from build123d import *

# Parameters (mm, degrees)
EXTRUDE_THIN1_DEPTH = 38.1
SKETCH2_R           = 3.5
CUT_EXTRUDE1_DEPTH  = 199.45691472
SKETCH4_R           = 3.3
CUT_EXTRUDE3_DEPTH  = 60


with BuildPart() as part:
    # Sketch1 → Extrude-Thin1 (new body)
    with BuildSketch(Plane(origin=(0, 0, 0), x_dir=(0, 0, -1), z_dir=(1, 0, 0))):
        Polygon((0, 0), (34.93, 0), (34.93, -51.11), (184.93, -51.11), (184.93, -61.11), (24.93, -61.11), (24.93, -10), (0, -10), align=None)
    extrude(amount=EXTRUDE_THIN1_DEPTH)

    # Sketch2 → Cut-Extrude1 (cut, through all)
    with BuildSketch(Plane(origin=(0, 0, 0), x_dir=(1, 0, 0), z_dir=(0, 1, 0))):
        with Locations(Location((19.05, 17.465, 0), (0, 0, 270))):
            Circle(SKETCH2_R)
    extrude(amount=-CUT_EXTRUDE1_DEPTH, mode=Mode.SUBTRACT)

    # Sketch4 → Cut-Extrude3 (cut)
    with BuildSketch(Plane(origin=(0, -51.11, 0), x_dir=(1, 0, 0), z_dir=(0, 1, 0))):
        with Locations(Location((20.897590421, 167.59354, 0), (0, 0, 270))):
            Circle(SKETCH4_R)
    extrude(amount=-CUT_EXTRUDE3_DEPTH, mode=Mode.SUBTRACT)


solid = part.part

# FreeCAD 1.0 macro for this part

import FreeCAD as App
import Part
import Sketcher


def add_polygon(sketch, points):
    """Adds a closed chain of lines whose ends are joined by coincident constraints."""
    first, n = sketch.GeometryCount, len(points)
    for a, b in zip(points, points[1:] + points[:1]):
        sketch.addGeometry(Part.LineSegment(App.Vector(*a, 0), App.Vector(*b, 0)), False)
    for i in range(n):
        sketch.addConstraint(Sketcher.Constraint("Coincident", first + i, 2, first + (i + 1) % n, 1))

doc = App.newDocument("Part")
body = doc.addObject("PartDesign::Body", "Body")

# Sketch on YZ plane
sketch1 = body.newObject("Sketcher::SketchObject", "Sketch")
sketch1.AttachmentSupport = (doc.getObject("YZ_Plane"), [""])
sketch1.MapMode = "FlatFace"
add_polygon(sketch1, [(0, -35), (0, 0), (-10, 0), (-10, -25), (-61, -25), (-61, -185), (-51, -185), (-51, -35)])  # lines 0-7
sketch1.addConstraint([
    Sketcher.Constraint("Vertical", 0),
    Sketcher.Constraint("Horizontal", 1),
    Sketcher.Constraint("Vertical", 2),
    Sketcher.Constraint("Horizontal", 3),
    Sketcher.Constraint("Vertical", 4),
    Sketcher.Constraint("Horizontal", 5),
    Sketcher.Constraint("Vertical", 6),
    Sketcher.Constraint("Horizontal", 7),
    Sketcher.Constraint("Coincident", 0, 2, -1, 1),
    Sketcher.Constraint("Equal", 1, 5),
    Sketcher.Constraint("DistanceX", 1, 2, 1, 1, 10.0),
    Sketcher.Constraint("DistanceY", 4, 2, 4, 1, 160.0),
    Sketcher.Constraint("DistanceY", 6, 1, 6, 2, 150.0),
    Sketcher.Constraint("DistanceX", 3, 2, 3, 1, 51.11),
    Sketcher.Constraint("DistanceY", 0, 1, 0, 2, 34.93),
])
pad1 = body.newObject("PartDesign::Pad", "Pad")
pad1.Profile = sketch1
pad1.Length = 38.1

# Sketch on XZ plane
sketch2 = body.newObject("Sketcher::SketchObject", "Sketch001")
sketch2.AttachmentSupport = (doc.getObject("XZ_Plane"), [""])
sketch2.MapMode = "FlatFace"
sketch2.addGeometry(Part.Circle(App.Vector(19.1, -17.5, 0), App.Vector(0, 0, 1), 3.5), False)
sketch2.addConstraint([
    Sketcher.Constraint("Diameter", 0, 7.0),
    Sketcher.Constraint("DistanceX", -1, 1, 0, 3, 19.05),
    Sketcher.Constraint("DistanceY", 0, 3, -1, 1, 17.465),
])
pocket1 = body.newObject("PartDesign::Pocket", "Pocket")
pocket1.Profile = sketch2
pocket1.Type = "ThroughAll"
pocket1.Reversed = True

# Sketch on XZ plane
sketch3 = body.newObject("Sketcher::SketchObject", "Sketch002")
sketch3.AttachmentSupport = (doc.getObject("XZ_Plane"), [""])
sketch3.MapMode = "FlatFace"
sketch3.AttachmentOffset = App.Placement(App.Vector(0, 0, 51.11), App.Rotation())
sketch3.addGeometry(Part.Circle(App.Vector(20.9, -167.6, 0), App.Vector(0, 0, 1), 3.3), False)
sketch3.addConstraint([
    Sketcher.Constraint("Diameter", 0, 6.6),
    Sketcher.Constraint("DistanceX", -1, 1, 0, 3, 20.89759),
    Sketcher.Constraint("DistanceY", 0, 3, -1, 1, 167.59354),
])
pocket2 = body.newObject("PartDesign::Pocket", "Pocket001")
pocket2.Profile = sketch3
pocket2.Length = 60
pocket2.Reversed = True

doc.recompute()
